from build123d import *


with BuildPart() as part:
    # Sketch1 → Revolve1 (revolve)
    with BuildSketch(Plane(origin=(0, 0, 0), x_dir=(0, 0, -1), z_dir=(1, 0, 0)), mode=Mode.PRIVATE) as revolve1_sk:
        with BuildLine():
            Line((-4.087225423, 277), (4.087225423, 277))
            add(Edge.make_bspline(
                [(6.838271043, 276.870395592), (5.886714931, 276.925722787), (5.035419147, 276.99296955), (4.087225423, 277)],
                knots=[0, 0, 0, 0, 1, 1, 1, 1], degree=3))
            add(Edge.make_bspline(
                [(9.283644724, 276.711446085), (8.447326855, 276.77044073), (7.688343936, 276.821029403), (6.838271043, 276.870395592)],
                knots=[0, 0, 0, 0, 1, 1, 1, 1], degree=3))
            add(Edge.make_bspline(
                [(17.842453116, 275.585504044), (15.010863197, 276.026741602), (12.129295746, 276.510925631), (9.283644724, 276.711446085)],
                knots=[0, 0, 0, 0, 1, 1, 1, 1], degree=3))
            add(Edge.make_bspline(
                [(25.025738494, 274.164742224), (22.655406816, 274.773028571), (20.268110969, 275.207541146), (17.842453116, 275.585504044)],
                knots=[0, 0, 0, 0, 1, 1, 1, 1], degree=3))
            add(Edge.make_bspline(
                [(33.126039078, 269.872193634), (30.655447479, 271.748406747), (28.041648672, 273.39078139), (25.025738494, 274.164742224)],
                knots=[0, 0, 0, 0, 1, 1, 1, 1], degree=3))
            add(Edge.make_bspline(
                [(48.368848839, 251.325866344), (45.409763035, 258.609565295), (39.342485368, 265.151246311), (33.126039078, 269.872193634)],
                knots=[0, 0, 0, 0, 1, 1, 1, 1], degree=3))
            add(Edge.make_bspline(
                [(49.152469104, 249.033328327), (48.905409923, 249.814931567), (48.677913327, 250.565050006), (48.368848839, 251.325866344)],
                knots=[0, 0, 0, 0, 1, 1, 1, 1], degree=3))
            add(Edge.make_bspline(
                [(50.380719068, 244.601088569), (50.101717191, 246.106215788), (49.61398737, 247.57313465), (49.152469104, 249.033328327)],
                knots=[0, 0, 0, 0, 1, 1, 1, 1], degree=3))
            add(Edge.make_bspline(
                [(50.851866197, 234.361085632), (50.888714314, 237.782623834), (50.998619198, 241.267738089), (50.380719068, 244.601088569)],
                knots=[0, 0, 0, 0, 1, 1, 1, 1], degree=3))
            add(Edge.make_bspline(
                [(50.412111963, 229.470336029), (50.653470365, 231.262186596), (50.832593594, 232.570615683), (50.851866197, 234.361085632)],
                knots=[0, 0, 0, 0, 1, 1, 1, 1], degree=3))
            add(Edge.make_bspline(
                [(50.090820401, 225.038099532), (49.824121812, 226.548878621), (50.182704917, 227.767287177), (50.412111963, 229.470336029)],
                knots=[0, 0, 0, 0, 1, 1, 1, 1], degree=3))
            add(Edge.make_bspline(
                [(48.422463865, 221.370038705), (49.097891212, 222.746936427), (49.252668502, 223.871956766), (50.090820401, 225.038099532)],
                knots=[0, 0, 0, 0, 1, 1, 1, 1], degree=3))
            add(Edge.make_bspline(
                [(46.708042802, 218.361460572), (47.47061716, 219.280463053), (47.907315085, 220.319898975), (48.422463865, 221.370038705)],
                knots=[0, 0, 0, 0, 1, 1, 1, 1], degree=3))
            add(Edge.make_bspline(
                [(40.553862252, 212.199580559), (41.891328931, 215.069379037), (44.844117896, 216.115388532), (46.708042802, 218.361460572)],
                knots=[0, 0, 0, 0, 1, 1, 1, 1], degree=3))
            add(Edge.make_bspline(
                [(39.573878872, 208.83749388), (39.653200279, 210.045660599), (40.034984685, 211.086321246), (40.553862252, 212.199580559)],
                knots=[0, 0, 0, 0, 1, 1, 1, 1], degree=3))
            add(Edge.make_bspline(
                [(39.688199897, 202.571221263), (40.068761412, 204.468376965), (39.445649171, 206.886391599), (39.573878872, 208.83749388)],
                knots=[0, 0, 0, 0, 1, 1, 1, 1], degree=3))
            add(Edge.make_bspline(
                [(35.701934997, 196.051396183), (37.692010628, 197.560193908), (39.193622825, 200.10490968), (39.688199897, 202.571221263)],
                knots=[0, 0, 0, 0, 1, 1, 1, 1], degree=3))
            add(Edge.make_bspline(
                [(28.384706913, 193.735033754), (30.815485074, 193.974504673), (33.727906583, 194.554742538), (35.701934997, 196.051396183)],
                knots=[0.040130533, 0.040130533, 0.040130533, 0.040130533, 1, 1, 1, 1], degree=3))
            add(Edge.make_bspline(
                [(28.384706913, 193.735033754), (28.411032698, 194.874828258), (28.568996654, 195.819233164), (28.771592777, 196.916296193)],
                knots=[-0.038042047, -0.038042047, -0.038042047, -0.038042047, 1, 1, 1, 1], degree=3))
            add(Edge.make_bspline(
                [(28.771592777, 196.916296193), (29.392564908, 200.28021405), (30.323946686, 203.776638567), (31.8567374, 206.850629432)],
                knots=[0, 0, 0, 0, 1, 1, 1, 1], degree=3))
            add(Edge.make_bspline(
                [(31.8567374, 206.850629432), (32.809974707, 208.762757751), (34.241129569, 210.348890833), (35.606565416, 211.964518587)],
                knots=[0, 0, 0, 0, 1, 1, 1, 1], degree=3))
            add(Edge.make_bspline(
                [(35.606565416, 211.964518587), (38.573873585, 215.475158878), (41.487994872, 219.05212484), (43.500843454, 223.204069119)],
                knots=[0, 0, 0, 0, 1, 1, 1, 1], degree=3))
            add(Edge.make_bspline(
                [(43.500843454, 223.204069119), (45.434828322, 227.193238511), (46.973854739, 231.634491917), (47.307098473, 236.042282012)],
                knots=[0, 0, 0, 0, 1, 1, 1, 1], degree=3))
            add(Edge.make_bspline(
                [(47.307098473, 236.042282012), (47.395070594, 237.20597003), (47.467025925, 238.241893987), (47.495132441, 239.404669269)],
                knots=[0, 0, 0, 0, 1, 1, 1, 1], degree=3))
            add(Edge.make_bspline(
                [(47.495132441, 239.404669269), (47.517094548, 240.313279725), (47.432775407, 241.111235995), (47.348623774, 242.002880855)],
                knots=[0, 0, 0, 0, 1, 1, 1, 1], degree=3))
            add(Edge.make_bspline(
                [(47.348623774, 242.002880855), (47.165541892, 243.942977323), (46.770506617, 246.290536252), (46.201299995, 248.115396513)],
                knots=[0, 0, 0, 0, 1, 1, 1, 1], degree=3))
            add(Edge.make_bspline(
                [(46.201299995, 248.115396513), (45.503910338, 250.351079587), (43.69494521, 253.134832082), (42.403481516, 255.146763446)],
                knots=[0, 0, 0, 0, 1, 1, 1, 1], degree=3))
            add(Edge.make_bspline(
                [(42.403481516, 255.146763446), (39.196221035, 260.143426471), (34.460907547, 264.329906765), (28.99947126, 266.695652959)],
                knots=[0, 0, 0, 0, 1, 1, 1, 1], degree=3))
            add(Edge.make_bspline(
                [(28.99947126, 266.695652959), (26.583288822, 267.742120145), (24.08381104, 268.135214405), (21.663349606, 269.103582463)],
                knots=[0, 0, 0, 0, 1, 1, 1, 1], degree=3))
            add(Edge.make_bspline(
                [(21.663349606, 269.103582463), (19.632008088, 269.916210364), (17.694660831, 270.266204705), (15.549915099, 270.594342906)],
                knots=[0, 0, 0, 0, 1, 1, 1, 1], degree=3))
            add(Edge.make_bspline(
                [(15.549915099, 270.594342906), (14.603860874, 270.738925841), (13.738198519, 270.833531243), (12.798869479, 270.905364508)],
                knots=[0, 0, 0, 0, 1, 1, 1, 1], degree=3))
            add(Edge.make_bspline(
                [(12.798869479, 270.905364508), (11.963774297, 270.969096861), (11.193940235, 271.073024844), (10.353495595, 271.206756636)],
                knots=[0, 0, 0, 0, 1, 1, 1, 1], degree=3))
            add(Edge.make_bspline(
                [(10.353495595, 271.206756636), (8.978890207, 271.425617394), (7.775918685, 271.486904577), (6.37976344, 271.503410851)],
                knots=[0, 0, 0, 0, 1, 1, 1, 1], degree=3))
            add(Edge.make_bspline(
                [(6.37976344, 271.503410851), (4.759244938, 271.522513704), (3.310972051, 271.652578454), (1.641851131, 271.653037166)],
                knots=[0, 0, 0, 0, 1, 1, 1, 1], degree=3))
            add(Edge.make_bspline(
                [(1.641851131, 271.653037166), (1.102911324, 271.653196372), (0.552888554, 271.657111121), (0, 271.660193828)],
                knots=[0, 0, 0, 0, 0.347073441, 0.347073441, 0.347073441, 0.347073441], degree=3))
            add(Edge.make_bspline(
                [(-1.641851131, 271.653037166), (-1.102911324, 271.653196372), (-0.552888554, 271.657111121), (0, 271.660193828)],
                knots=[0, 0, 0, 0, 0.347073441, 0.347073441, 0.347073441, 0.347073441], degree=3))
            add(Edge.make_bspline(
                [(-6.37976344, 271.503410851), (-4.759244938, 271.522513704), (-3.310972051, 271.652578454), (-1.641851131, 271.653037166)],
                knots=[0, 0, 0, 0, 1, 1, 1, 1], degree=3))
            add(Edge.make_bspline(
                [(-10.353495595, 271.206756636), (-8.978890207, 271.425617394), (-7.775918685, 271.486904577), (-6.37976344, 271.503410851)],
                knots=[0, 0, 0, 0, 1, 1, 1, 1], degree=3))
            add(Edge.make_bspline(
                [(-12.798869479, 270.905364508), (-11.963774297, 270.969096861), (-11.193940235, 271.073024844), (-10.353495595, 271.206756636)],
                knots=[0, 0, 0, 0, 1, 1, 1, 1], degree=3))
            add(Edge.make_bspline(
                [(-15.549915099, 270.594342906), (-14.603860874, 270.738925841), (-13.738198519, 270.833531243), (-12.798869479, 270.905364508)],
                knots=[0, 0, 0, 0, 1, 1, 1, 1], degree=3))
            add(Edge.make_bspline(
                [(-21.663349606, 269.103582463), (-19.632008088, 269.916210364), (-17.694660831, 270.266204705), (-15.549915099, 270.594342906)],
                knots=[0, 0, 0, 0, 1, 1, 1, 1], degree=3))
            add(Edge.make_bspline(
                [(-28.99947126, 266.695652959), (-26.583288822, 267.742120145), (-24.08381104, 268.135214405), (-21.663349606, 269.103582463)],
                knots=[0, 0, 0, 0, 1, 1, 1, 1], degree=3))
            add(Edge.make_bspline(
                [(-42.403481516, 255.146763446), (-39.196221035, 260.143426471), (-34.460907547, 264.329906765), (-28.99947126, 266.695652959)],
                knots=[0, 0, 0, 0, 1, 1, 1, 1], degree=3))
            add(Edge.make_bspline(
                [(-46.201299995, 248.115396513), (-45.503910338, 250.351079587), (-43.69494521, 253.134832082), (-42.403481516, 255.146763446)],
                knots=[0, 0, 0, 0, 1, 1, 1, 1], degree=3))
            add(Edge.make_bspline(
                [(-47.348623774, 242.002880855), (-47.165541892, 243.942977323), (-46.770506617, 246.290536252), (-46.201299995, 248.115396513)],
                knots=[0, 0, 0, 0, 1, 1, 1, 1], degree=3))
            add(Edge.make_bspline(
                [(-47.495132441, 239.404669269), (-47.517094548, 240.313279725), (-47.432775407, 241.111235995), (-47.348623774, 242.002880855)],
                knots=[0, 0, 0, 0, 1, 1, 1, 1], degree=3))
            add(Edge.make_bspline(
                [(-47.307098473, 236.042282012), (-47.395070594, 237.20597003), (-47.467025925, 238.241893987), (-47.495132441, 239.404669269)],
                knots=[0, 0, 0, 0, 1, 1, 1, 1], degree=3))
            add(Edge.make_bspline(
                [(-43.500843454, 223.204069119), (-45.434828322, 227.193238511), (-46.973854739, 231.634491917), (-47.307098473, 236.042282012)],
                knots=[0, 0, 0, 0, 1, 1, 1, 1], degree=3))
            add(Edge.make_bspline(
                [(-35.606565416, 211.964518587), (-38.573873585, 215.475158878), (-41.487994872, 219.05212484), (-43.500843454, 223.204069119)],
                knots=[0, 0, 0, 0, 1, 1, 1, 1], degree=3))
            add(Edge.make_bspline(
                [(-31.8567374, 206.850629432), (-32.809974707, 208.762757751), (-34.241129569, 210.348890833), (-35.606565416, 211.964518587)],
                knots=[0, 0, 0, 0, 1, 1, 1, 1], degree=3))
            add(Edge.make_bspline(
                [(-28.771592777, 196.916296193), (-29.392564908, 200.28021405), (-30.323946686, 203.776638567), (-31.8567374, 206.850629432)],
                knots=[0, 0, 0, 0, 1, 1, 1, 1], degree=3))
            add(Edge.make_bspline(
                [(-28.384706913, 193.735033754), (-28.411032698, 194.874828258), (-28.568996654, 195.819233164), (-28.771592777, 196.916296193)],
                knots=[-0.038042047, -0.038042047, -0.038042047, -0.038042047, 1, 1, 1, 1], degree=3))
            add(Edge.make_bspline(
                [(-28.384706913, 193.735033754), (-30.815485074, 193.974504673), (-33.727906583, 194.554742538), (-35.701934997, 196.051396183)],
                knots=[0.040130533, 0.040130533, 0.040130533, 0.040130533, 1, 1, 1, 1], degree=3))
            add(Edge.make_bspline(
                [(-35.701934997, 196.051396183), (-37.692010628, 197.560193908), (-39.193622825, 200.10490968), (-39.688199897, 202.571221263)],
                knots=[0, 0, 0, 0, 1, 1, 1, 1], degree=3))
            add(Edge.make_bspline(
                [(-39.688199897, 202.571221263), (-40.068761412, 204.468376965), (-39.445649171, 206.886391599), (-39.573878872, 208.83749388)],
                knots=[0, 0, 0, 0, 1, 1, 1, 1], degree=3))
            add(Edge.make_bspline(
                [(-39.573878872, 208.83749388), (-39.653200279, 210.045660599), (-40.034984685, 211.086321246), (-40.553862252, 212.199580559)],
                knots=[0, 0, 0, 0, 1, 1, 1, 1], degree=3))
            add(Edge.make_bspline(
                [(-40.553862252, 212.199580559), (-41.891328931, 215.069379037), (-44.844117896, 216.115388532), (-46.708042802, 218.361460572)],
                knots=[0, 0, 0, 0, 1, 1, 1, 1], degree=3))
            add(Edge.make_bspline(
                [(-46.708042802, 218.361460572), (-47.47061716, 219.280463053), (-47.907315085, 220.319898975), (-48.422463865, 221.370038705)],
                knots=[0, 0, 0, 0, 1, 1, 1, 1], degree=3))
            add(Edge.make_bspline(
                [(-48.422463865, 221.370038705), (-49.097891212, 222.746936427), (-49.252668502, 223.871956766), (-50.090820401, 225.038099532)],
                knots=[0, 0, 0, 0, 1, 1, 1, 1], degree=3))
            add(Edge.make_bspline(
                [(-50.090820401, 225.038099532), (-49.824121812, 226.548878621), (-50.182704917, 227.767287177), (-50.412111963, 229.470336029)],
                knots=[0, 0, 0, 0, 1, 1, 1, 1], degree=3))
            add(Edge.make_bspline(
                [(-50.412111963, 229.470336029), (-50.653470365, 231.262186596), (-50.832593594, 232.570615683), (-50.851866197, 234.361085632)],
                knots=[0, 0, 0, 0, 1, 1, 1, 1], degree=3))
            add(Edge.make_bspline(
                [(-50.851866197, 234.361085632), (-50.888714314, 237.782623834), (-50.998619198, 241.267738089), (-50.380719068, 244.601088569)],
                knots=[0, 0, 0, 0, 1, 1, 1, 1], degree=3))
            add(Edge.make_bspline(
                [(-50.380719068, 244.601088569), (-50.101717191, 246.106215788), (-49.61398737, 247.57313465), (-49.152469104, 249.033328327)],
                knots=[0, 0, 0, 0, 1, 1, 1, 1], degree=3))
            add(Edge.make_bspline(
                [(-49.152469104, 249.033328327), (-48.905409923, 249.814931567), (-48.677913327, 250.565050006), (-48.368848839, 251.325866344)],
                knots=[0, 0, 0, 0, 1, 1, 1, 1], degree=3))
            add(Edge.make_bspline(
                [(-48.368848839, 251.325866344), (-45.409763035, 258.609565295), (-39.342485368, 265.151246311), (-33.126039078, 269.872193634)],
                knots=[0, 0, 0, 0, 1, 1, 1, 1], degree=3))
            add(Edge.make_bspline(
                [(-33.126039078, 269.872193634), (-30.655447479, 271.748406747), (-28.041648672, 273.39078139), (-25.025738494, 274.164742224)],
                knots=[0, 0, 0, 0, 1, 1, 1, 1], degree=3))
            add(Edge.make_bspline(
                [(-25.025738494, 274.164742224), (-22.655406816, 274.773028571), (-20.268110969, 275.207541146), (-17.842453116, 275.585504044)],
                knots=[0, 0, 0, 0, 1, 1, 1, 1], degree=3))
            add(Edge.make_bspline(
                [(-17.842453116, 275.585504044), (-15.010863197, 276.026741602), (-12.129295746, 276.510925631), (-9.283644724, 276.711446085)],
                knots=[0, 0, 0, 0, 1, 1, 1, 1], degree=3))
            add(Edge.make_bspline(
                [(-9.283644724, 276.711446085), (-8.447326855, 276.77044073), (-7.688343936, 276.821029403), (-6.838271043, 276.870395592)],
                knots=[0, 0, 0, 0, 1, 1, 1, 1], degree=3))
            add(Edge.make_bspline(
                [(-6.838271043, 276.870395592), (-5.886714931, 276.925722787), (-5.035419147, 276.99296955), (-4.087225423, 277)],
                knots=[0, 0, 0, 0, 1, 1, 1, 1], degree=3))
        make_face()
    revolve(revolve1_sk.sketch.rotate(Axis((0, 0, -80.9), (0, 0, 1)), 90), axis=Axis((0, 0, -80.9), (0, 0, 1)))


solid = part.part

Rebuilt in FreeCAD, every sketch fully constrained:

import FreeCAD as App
import Part
import Sketcher
from FreeCAD import Vector

doc = App.newDocument("Part")
body = doc.addObject("PartDesign::Body", "Body")

sketch1 = body.newObject("Sketcher::SketchObject", "Sketch")
sketch1.AttachmentSupport = (doc.getObject("YZ_Plane"), [""])
sketch1.MapMode = "FlatFace"
sketch1.addGeometry(Part.LineSegment(Vector(277, -4.087225, 0), Vector(277, 4.087225, 0)), False)
sketch1.addGeometry(Part.BSplineCurve([Vector(276.870396, 6.838271, 0), Vector(276.925723, 5.886715, 0), Vector(276.99297, 5.035419, 0), Vector(277, 4.087225, 0)], [4, 4], [0, 1], False, 3, [1, 1, 1, 1], False), False)
sketch1.addGeometry(Part.BSplineCurve([Vector(276.711446, 9.283645, 0), Vector(276.770441, 8.447327, 0), Vector(276.821029, 7.688344, 0), Vector(276.870396, 6.838271, 0)], [4, 4], [0, 1], False, 3, [1, 1, 1, 1], False), False)
sketch1.addGeometry(Part.BSplineCurve([Vector(275.585504, 17.842453, 0), Vector(276.026742, 15.010863, 0), Vector(276.510926, 12.129296, 0), Vector(276.711446, 9.283645, 0)], [4, 4], [0, 1], False, 3, [1, 1, 1, 1], False), False)
sketch1.addGeometry(Part.BSplineCurve([Vector(274.164742, 25.025738, 0), Vector(274.773029, 22.655407, 0), Vector(275.207541, 20.268111, 0), Vector(275.585504, 17.842453, 0)], [4, 4], [0, 1], False, 3, [1, 1, 1, 1], False), False)
sketch1.addGeometry(Part.BSplineCurve([Vector(269.872194, 33.126039, 0), Vector(271.748407, 30.655447, 0), Vector(273.390781, 28.041649, 0), Vector(274.164742, 25.025738, 0)], [4, 4], [0, 1], False, 3, [1, 1, 1, 1], False), False)
sketch1.addGeometry(Part.BSplineCurve([Vector(251.325866, 48.368849, 0), Vector(258.609565, 45.409763, 0), Vector(265.151246, 39.342485, 0), Vector(269.872194, 33.126039, 0)], [4, 4], [0, 1], False, 3, [1, 1, 1, 1], False), False)
sketch1.addGeometry(Part.BSplineCurve([Vector(249.033328, 49.152469, 0), Vector(249.814932, 48.90541, 0), Vector(250.56505, 48.677913, 0), Vector(251.325866, 48.368849, 0)], [4, 4], [0, 1], False, 3, [1, 1, 1, 1], False), False)
sketch1.addGeometry(Part.BSplineCurve([Vector(244.601089, 50.380719, 0), Vector(246.106216, 50.101717, 0), Vector(247.573135, 49.613987, 0), Vector(249.033328, 49.152469, 0)], [4, 4], [0, 1], False, 3, [1, 1, 1, 1], False), False)
sketch1.addGeometry(Part.BSplineCurve([Vector(234.361086, 50.851866, 0), Vector(237.782624, 50.888714, 0), Vector(241.267738, 50.998619, 0), Vector(244.601089, 50.380719, 0)], [4, 4], [0, 1], False, 3, [1, 1, 1, 1], False), False)
sketch1.addGeometry(Part.BSplineCurve([Vector(229.470336, 50.412112, 0), Vector(231.262187, 50.65347, 0), Vector(232.570616, 50.832594, 0), Vector(234.361086, 50.851866, 0)], [4, 4], [0, 1], False, 3, [1, 1, 1, 1], False), False)
sketch1.addGeometry(Part.BSplineCurve([Vector(225.0381, 50.09082, 0), Vector(226.548879, 49.824122, 0), Vector(227.767287, 50.182705, 0), Vector(229.470336, 50.412112, 0)], [4, 4], [0, 1], False, 3, [1, 1, 1, 1], False), False)
sketch1.addGeometry(Part.BSplineCurve([Vector(221.370039, 48.422464, 0), Vector(222.746936, 49.097891, 0), Vector(223.871957, 49.252669, 0), Vector(225.0381, 50.09082, 0)], [4, 4], [0, 1], False, 3, [1, 1, 1, 1], False), False)
sketch1.addGeometry(Part.BSplineCurve([Vector(218.361461, 46.708043, 0), Vector(219.280463, 47.470617, 0), Vector(220.319899, 47.907315, 0), Vector(221.370039, 48.422464, 0)], [4, 4], [0, 1], False, 3, [1, 1, 1, 1], False), False)
sketch1.addGeometry(Part.BSplineCurve([Vector(212.199581, 40.553862, 0), Vector(215.069379, 41.891329, 0), Vector(216.115389, 44.844118, 0), Vector(218.361461, 46.708043, 0)], [4, 4], [0, 1], False, 3, [1, 1, 1, 1], False), False)
sketch1.addGeometry(Part.BSplineCurve([Vector(208.837494, 39.573879, 0), Vector(210.045661, 39.6532, 0), Vector(211.086321, 40.034985, 0), Vector(212.199581, 40.553862, 0)], [4, 4], [0, 1], False, 3, [1, 1, 1, 1], False), False)
sketch1.addGeometry(Part.BSplineCurve([Vector(202.571221, 39.6882, 0), Vector(204.468377, 40.068761, 0), Vector(206.886392, 39.445649, 0), Vector(208.837494, 39.573879, 0)], [4, 4], [0, 1], False, 3, [1, 1, 1, 1], False), False)
sketch1.addGeometry(Part.BSplineCurve([Vector(196.051396, 35.701935, 0), Vector(197.560194, 37.692011, 0), Vector(200.10491, 39.193623, 0), Vector(202.571221, 39.6882, 0)], [4, 4], [0, 1], False, 3, [1, 1, 1, 1], False), False)
sketch1.addGeometry(Part.BSplineCurve([Vector(193.735034, 28.384707, 0), Vector(193.974505, 30.815485, 0), Vector(194.554743, 33.727907, 0), Vector(196.051396, 35.701935, 0)], [4, 4], [0.040130533, 1], False, 3, [1, 1, 1, 1], False), False)
sketch1.addGeometry(Part.BSplineCurve([Vector(193.735034, 28.384707, 0), Vector(194.874828, 28.411033, 0), Vector(195.819233, 28.568997, 0), Vector(196.916296, 28.771593, 0)], [4, 4], [-0.038042047, 1], False, 3, [1, 1, 1, 1], False), False)
sketch1.addGeometry(Part.BSplineCurve([Vector(196.916296, 28.771593, 0), Vector(200.280214, 29.392565, 0), Vector(203.776639, 30.323947, 0), Vector(206.850629, 31.856737, 0)], [4, 4], [0, 1], False, 3, [1, 1, 1, 1], False), False)
sketch1.addGeometry(Part.BSplineCurve([Vector(206.850629, 31.856737, 0), Vector(208.762758, 32.809975, 0), Vector(210.348891, 34.24113, 0), Vector(211.964519, 35.606565, 0)], [4, 4], [0, 1], False, 3, [1, 1, 1, 1], False), False)
sketch1.addGeometry(Part.BSplineCurve([Vector(211.964519, 35.606565, 0), Vector(215.475159, 38.573874, 0), Vector(219.052125, 41.487995, 0), Vector(223.204069, 43.500843, 0)], [4, 4], [0, 1], False, 3, [1, 1, 1, 1], False), False)
sketch1.addGeometry(Part.BSplineCurve([Vector(223.204069, 43.500843, 0), Vector(227.193239, 45.434828, 0), Vector(231.634492, 46.973855, 0), Vector(236.042282, 47.307098, 0)], [4, 4], [0, 1], False, 3, [1, 1, 1, 1], False), False)
sketch1.addGeometry(Part.BSplineCurve([Vector(236.042282, 47.307098, 0), Vector(237.20597, 47.395071, 0), Vector(238.241894, 47.467026, 0), Vector(239.404669, 47.495132, 0)], [4, 4], [0, 1], False, 3, [1, 1, 1, 1], False), False)
sketch1.addGeometry(Part.BSplineCurve([Vector(239.404669, 47.495132, 0), Vector(240.31328, 47.517095, 0), Vector(241.111236, 47.432775, 0), Vector(242.002881, 47.348624, 0)], [4, 4], [0, 1], False, 3, [1, 1, 1, 1], False), False)
sketch1.addGeometry(Part.BSplineCurve([Vector(242.002881, 47.348624, 0), Vector(243.942977, 47.165542, 0), Vector(246.290536, 46.770507, 0), Vector(248.115397, 46.2013, 0)], [4, 4], [0, 1], False, 3, [1, 1, 1, 1], False), False)
sketch1.addGeometry(Part.BSplineCurve([Vector(248.115397, 46.2013, 0), Vector(250.35108, 45.50391, 0), Vector(253.134832, 43.694945, 0), Vector(255.146763, 42.403482, 0)], [4, 4], [0, 1], False, 3, [1, 1, 1, 1], False), False)
sketch1.addGeometry(Part.BSplineCurve([Vector(255.146763, 42.403482, 0), Vector(260.143426, 39.196221, 0), Vector(264.329907, 34.460908, 0), Vector(266.695653, 28.999471, 0)], [4, 4], [0, 1], False, 3, [1, 1, 1, 1], False), False)
sketch1.addGeometry(Part.BSplineCurve([Vector(266.695653, 28.999471, 0), Vector(267.74212, 26.583289, 0), Vector(268.135214, 24.083811, 0), Vector(269.103582, 21.66335, 0)], [4, 4], [0, 1], False, 3, [1, 1, 1, 1], False), False)
sketch1.addGeometry(Part.BSplineCurve([Vector(269.103582, 21.66335, 0), Vector(269.91621, 19.632008, 0), Vector(270.266205, 17.694661, 0), Vector(270.594343, 15.549915, 0)], [4, 4], [0, 1], False, 3, [1, 1, 1, 1], False), False)
sketch1.addGeometry(Part.BSplineCurve([Vector(270.594343, 15.549915, 0), Vector(270.738926, 14.603861, 0), Vector(270.833531, 13.738199, 0), Vector(270.905365, 12.798869, 0)], [4, 4], [0, 1], False, 3, [1, 1, 1, 1], False), False)
sketch1.addGeometry(Part.BSplineCurve([Vector(270.905365, 12.798869, 0), Vector(270.969097, 11.963774, 0), Vector(271.073025, 11.19394, 0), Vector(271.206757, 10.353496, 0)], [4, 4], [0, 1], False, 3, [1, 1, 1, 1], False), False)
sketch1.addGeometry(Part.BSplineCurve([Vector(271.206757, 10.353496, 0), Vector(271.425617, 8.97889, 0), Vector(271.486905, 7.775919, 0), Vector(271.503411, 6.379763, 0)], [4, 4], [0, 1], False, 3, [1, 1, 1, 1], False), False)
sketch1.addGeometry(Part.BSplineCurve([Vector(271.503411, 6.379763, 0), Vector(271.522514, 4.759245, 0), Vector(271.652578, 3.310972, 0), Vector(271.653037, 1.641851, 0)], [4, 4], [0, 1], False, 3, [1, 1, 1, 1], False), False)
sketch1.addGeometry(Part.BSplineCurve([Vector(271.653037, 1.641851, 0), Vector(271.653196, 1.102911, 0), Vector(271.657111, 0.552889, 0), Vector(271.660194, 0, 0)], [4, 4], [0, 0.347073441], False, 3, [1, 1, 1, 1], False), False)
sketch1.addGeometry(Part.BSplineCurve([Vector(271.653037, -1.641851, 0), Vector(271.653196, -1.102911, 0), Vector(271.657111, -0.552889, 0), Vector(271.660194, 0, 0)], [4, 4], [0, 0.347073441], False, 3, [1, 1, 1, 1], False), False)
sketch1.addGeometry(Part.BSplineCurve([Vector(271.503411, -6.379763, 0), Vector(271.522514, -4.759245, 0), Vector(271.652578, -3.310972, 0), Vector(271.653037, -1.641851, 0)], [4, 4], [0, 1], False, 3, [1, 1, 1, 1], False), False)
sketch1.addGeometry(Part.BSplineCurve([Vector(271.206757, -10.353496, 0), Vector(271.425617, -8.97889, 0), Vector(271.486905, -7.775919, 0), Vector(271.503411, -6.379763, 0)], [4, 4], [0, 1], False, 3, [1, 1, 1, 1], False), False)
sketch1.addGeometry(Part.BSplineCurve([Vector(270.905365, -12.798869, 0), Vector(270.969097, -11.963774, 0), Vector(271.073025, -11.19394, 0), Vector(271.206757, -10.353496, 0)], [4, 4], [0, 1], False, 3, [1, 1, 1, 1], False), False)
sketch1.addGeometry(Part.BSplineCurve([Vector(270.594343, -15.549915, 0), Vector(270.738926, -14.603861, 0), Vector(270.833531, -13.738199, 0), Vector(270.905365, -12.798869, 0)], [4, 4], [0, 1], False, 3, [1, 1, 1, 1], False), False)
sketch1.addGeometry(Part.BSplineCurve([Vector(269.103582, -21.66335, 0), Vector(269.91621, -19.632008, 0), Vector(270.266205, -17.694661, 0), Vector(270.594343, -15.549915, 0)], [4, 4], [0, 1], False, 3, [1, 1, 1, 1], False), False)
sketch1.addGeometry(Part.BSplineCurve([Vector(266.695653, -28.999471, 0), Vector(267.74212, -26.583289, 0), Vector(268.135214, -24.083811, 0), Vector(269.103582, -21.66335, 0)], [4, 4], [0, 1], False, 3, [1, 1, 1, 1], False), False)
sketch1.addGeometry(Part.BSplineCurve([Vector(255.146763, -42.403482, 0), Vector(260.143426, -39.196221, 0), Vector(264.329907, -34.460908, 0), Vector(266.695653, -28.999471, 0)], [4, 4], [0, 1], False, 3, [1, 1, 1, 1], False), False)
sketch1.addGeometry(Part.BSplineCurve([Vector(248.115397, -46.2013, 0), Vector(250.35108, -45.50391, 0), Vector(253.134832, -43.694945, 0), Vector(255.146763, -42.403482, 0)], [4, 4], [0, 1], False, 3, [1, 1, 1, 1], False), False)
sketch1.addGeometry(Part.BSplineCurve([Vector(242.002881, -47.348624, 0), Vector(243.942977, -47.165542, 0), Vector(246.290536, -46.770507, 0), Vector(248.115397, -46.2013, 0)], [4, 4], [0, 1], False, 3, [1, 1, 1, 1], False), False)
sketch1.addGeometry(Part.BSplineCurve([Vector(239.404669, -47.495132, 0), Vector(240.31328, -47.517095, 0), Vector(241.111236, -47.432775, 0), Vector(242.002881, -47.348624, 0)], [4, 4], [0, 1], False, 3, [1, 1, 1, 1], False), False)
sketch1.addGeometry(Part.BSplineCurve([Vector(236.042282, -47.307098, 0), Vector(237.20597, -47.395071, 0), Vector(238.241894, -47.467026, 0), Vector(239.404669, -47.495132, 0)], [4, 4], [0, 1], False, 3, [1, 1, 1, 1], False), False)
sketch1.addGeometry(Part.BSplineCurve([Vector(223.204069, -43.500843, 0), Vector(227.193239, -45.434828, 0), Vector(231.634492, -46.973855, 0), Vector(236.042282, -47.307098, 0)], [4, 4], [0, 1], False, 3, [1, 1, 1, 1], False), False)
sketch1.addGeometry(Part.BSplineCurve([Vector(211.964519, -35.606565, 0), Vector(215.475159, -38.573874, 0), Vector(219.052125, -41.487995, 0), Vector(223.204069, -43.500843, 0)], [4, 4], [0, 1], False, 3, [1, 1, 1, 1], False), False)
sketch1.addGeometry(Part.BSplineCurve([Vector(206.850629, -31.856737, 0), Vector(208.762758, -32.809975, 0), Vector(210.348891, -34.24113, 0), Vector(211.964519, -35.606565, 0)], [4, 4], [0, 1], False, 3, [1, 1, 1, 1], False), False)
sketch1.addGeometry(Part.BSplineCurve([Vector(196.916296, -28.771593, 0), Vector(200.280214, -29.392565, 0), Vector(203.776639, -30.323947, 0), Vector(206.850629, -31.856737, 0)], [4, 4], [0, 1], False, 3, [1, 1, 1, 1], False), False)
sketch1.addGeometry(Part.BSplineCurve([Vector(193.735034, -28.384707, 0), Vector(194.874828, -28.411033, 0), Vector(195.819233, -28.568997, 0), Vector(196.916296, -28.771593, 0)], [4, 4], [-0.038042047, 1], False, 3, [1, 1, 1, 1], False), False)
sketch1.addGeometry(Part.BSplineCurve([Vector(193.735034, -28.384707, 0), Vector(193.974505, -30.815485, 0), Vector(194.554743, -33.727907, 0), Vector(196.051396, -35.701935, 0)], [4, 4], [0.040130533, 1], False, 3, [1, 1, 1, 1], False), False)
sketch1.addGeometry(Part.BSplineCurve([Vector(196.051396, -35.701935, 0), Vector(197.560194, -37.692011, 0), Vector(200.10491, -39.193623, 0), Vector(202.571221, -39.6882, 0)], [4, 4], [0, 1], False, 3, [1, 1, 1, 1], False), False)
sketch1.addGeometry(Part.BSplineCurve([Vector(202.571221, -39.6882, 0), Vector(204.468377, -40.068761, 0), Vector(206.886392, -39.445649, 0), Vector(208.837494, -39.573879, 0)], [4, 4], [0, 1], False, 3, [1, 1, 1, 1], False), False)
sketch1.addGeometry(Part.BSplineCurve([Vector(208.837494, -39.573879, 0), Vector(210.045661, -39.6532, 0), Vector(211.086321, -40.034985, 0), Vector(212.199581, -40.553862, 0)], [4, 4], [0, 1], False, 3, [1, 1, 1, 1], False), False)
sketch1.addGeometry(Part.BSplineCurve([Vector(212.199581, -40.553862, 0), Vector(215.069379, -41.891329, 0), Vector(216.115389, -44.844118, 0), Vector(218.361461, -46.708043, 0)], [4, 4], [0, 1], False, 3, [1, 1, 1, 1], False), False)
sketch1.addGeometry(Part.BSplineCurve([Vector(218.361461, -46.708043, 0), Vector(219.280463, -47.470617, 0), Vector(220.319899, -47.907315, 0), Vector(221.370039, -48.422464, 0)], [4, 4], [0, 1], False, 3, [1, 1, 1, 1], False), False)
sketch1.addGeometry(Part.BSplineCurve([Vector(221.370039, -48.422464, 0), Vector(222.746936, -49.097891, 0), Vector(223.871957, -49.252669, 0), Vector(225.0381, -50.09082, 0)], [4, 4], [0, 1], False, 3, [1, 1, 1, 1], False), False)
sketch1.addGeometry(Part.BSplineCurve([Vector(225.0381, -50.09082, 0), Vector(226.548879, -49.824122, 0), Vector(227.767287, -50.182705, 0), Vector(229.470336, -50.412112, 0)], [4, 4], [0, 1], False, 3, [1, 1, 1, 1], False), False)
sketch1.addGeometry(Part.BSplineCurve([Vector(229.470336, -50.412112, 0), Vector(231.262187, -50.65347, 0), Vector(232.570616, -50.832594, 0), Vector(234.361086, -50.851866, 0)], [4, 4], [0, 1], False, 3, [1, 1, 1, 1], False), False)
sketch1.addGeometry(Part.BSplineCurve([Vector(234.361086, -50.851866, 0), Vector(237.782624, -50.888714, 0), Vector(241.267738, -50.998619, 0), Vector(244.601089, -50.380719, 0)], [4, 4], [0, 1], False, 3, [1, 1, 1, 1], False), False)
sketch1.addGeometry(Part.BSplineCurve([Vector(244.601089, -50.380719, 0), Vector(246.106216, -50.101717, 0), Vector(247.573135, -49.613987, 0), Vector(249.033328, -49.152469, 0)], [4, 4], [0, 1], False, 3, [1, 1, 1, 1], False), False)
sketch1.addGeometry(Part.BSplineCurve([Vector(249.033328, -49.152469, 0), Vector(249.814932, -48.90541, 0), Vector(250.56505, -48.677913, 0), Vector(251.325866, -48.368849, 0)], [4, 4], [0, 1], False, 3, [1, 1, 1, 1], False), False)
sketch1.addGeometry(Part.BSplineCurve([Vector(251.325866, -48.368849, 0), Vector(258.609565, -45.409763, 0), Vector(265.151246, -39.342485, 0), Vector(269.872194, -33.126039, 0)], [4, 4], [0, 1], False, 3, [1, 1, 1, 1], False), False)
sketch1.addGeometry(Part.BSplineCurve([Vector(269.872194, -33.126039, 0), Vector(271.748407, -30.655447, 0), Vector(273.390781, -28.041649, 0), Vector(274.164742, -25.025738, 0)], [4, 4], [0, 1], False, 3, [1, 1, 1, 1], False), False)
sketch1.addGeometry(Part.BSplineCurve([Vector(274.164742, -25.025738, 0), Vector(274.773029, -22.655407, 0), Vector(275.207541, -20.268111, 0), Vector(275.585504, -17.842453, 0)], [4, 4], [0, 1], False, 3, [1, 1, 1, 1], False), False)
sketch1.addGeometry(Part.BSplineCurve([Vector(275.585504, -17.842453, 0), Vector(276.026742, -15.010863, 0), Vector(276.510926, -12.129296, 0), Vector(276.711446, -9.283645, 0)], [4, 4], [0, 1], False, 3, [1, 1, 1, 1], False), False)
sketch1.addGeometry(Part.BSplineCurve([Vector(276.711446, -9.283645, 0), Vector(276.770441, -8.447327, 0), Vector(276.821029, -7.688344, 0), Vector(276.870396, -6.838271, 0)], [4, 4], [0, 1], False, 3, [1, 1, 1, 1], False), False)
sketch1.addGeometry(Part.BSplineCurve([Vector(276.870396, -6.838271, 0), Vector(276.925723, -5.886715, 0), Vector(276.99297, -5.035419, 0), Vector(277, -4.087225, 0)], [4, 4], [0, 1], False, 3, [1, 1, 1, 1], False), False)
sketch1.addConstraint(Sketcher.Constraint("Block", 1))
sketch1.addConstraint(Sketcher.Constraint("Block", 2))
sketch1.addConstraint(Sketcher.Constraint("Block", 3))
sketch1.addConstraint(Sketcher.Constraint("Block", 4))
sketch1.addConstraint(Sketcher.Constraint("Block", 5))
sketch1.addConstraint(Sketcher.Constraint("Block", 6))
sketch1.addConstraint(Sketcher.Constraint("Block", 7))
sketch1.addConstraint(Sketcher.Constraint("Block", 8))
sketch1.addConstraint(Sketcher.Constraint("Block", 9))
sketch1.addConstraint(Sketcher.Constraint("Block", 10))
sketch1.addConstraint(Sketcher.Constraint("Block", 11))
sketch1.addConstraint(Sketcher.Constraint("Block", 12))
sketch1.addConstraint(Sketcher.Constraint("Block", 13))
sketch1.addConstraint(Sketcher.Constraint("Block", 14))
sketch1.addConstraint(Sketcher.Constraint("Block", 15))
sketch1.addConstraint(Sketcher.Constraint("Block", 16))
sketch1.addConstraint(Sketcher.Constraint("Block", 17))
sketch1.addConstraint(Sketcher.Constraint("Block", 18))
sketch1.addConstraint(Sketcher.Constraint("Block", 19))
sketch1.addConstraint(Sketcher.Constraint("Block", 20))
sketch1.addConstraint(Sketcher.Constraint("Block", 21))
sketch1.addConstraint(Sketcher.Constraint("Block", 22))
sketch1.addConstraint(Sketcher.Constraint("Block", 23))
sketch1.addConstraint(Sketcher.Constraint("Block", 24))
sketch1.addConstraint(Sketcher.Constraint("Block", 25))
sketch1.addConstraint(Sketcher.Constraint("Block", 26))
sketch1.addConstraint(Sketcher.Constraint("Block", 27))
sketch1.addConstraint(Sketcher.Constraint("Block", 28))
sketch1.addConstraint(Sketcher.Constraint("Block", 29))
sketch1.addConstraint(Sketcher.Constraint("Block", 30))
sketch1.addConstraint(Sketcher.Constraint("Block", 31))
sketch1.addConstraint(Sketcher.Constraint("Block", 32))
sketch1.addConstraint(Sketcher.Constraint("Block", 33))
sketch1.addConstraint(Sketcher.Constraint("Block", 34))
sketch1.addConstraint(Sketcher.Constraint("Block", 35))
sketch1.addConstraint(Sketcher.Constraint("Block", 36))
sketch1.addConstraint(Sketcher.Constraint("Block", 37))
sketch1.addConstraint(Sketcher.Constraint("Block", 38))
sketch1.addConstraint(Sketcher.Constraint("Block", 39))
sketch1.addConstraint(Sketcher.Constraint("Block", 40))
sketch1.addConstraint(Sketcher.Constraint("Block", 41))
sketch1.addConstraint(Sketcher.Constraint("Block", 42))
sketch1.addConstraint(Sketcher.Constraint("Block", 43))
sketch1.addConstraint(Sketcher.Constraint("Block", 44))
sketch1.addConstraint(Sketcher.Constraint("Block", 45))
sketch1.addConstraint(Sketcher.Constraint("Block", 46))
sketch1.addConstraint(Sketcher.Constraint("Block", 47))
sketch1.addConstraint(Sketcher.Constraint("Block", 48))
sketch1.addConstraint(Sketcher.Constraint("Block", 49))
sketch1.addConstraint(Sketcher.Constraint("Block", 50))
sketch1.addConstraint(Sketcher.Constraint("Block", 51))
sketch1.addConstraint(Sketcher.Constraint("Block", 52))
sketch1.addConstraint(Sketcher.Constraint("Block", 53))
sketch1.addConstraint(Sketcher.Constraint("Block", 54))
sketch1.addConstraint(Sketcher.Constraint("Block", 55))
sketch1.addConstraint(Sketcher.Constraint("Block", 56))
sketch1.addConstraint(Sketcher.Constraint("Block", 57))
sketch1.addConstraint(Sketcher.Constraint("Block", 58))
sketch1.addConstraint(Sketcher.Constraint("Block", 59))
sketch1.addConstraint(Sketcher.Constraint("Block", 60))
sketch1.addConstraint(Sketcher.Constraint("Block", 61))
sketch1.addConstraint(Sketcher.Constraint("Block", 62))
sketch1.addConstraint(Sketcher.Constraint("Block", 63))
sketch1.addConstraint(Sketcher.Constraint("Block", 64))
sketch1.addConstraint(Sketcher.Constraint("Block", 65))
sketch1.addConstraint(Sketcher.Constraint("Block", 66))
sketch1.addConstraint(Sketcher.Constraint("Block", 67))
sketch1.addConstraint(Sketcher.Constraint("Block", 68))
sketch1.addConstraint(Sketcher.Constraint("Block", 69))
sketch1.addConstraint(Sketcher.Constraint("Block", 70))
sketch1.addConstraint(Sketcher.Constraint("Coincident", 0, 2, 1, 2))
sketch1.addConstraint(Sketcher.Constraint("Coincident", 70, 2, 0, 1))
revolution = body.newObject("PartDesign::Revolution", "Revolution")
revolution.Profile = sketch1
revolution.ReferenceAxis = (sketch1, ["V_Axis"])
revolution.Angle = 360

doc.recompute()
